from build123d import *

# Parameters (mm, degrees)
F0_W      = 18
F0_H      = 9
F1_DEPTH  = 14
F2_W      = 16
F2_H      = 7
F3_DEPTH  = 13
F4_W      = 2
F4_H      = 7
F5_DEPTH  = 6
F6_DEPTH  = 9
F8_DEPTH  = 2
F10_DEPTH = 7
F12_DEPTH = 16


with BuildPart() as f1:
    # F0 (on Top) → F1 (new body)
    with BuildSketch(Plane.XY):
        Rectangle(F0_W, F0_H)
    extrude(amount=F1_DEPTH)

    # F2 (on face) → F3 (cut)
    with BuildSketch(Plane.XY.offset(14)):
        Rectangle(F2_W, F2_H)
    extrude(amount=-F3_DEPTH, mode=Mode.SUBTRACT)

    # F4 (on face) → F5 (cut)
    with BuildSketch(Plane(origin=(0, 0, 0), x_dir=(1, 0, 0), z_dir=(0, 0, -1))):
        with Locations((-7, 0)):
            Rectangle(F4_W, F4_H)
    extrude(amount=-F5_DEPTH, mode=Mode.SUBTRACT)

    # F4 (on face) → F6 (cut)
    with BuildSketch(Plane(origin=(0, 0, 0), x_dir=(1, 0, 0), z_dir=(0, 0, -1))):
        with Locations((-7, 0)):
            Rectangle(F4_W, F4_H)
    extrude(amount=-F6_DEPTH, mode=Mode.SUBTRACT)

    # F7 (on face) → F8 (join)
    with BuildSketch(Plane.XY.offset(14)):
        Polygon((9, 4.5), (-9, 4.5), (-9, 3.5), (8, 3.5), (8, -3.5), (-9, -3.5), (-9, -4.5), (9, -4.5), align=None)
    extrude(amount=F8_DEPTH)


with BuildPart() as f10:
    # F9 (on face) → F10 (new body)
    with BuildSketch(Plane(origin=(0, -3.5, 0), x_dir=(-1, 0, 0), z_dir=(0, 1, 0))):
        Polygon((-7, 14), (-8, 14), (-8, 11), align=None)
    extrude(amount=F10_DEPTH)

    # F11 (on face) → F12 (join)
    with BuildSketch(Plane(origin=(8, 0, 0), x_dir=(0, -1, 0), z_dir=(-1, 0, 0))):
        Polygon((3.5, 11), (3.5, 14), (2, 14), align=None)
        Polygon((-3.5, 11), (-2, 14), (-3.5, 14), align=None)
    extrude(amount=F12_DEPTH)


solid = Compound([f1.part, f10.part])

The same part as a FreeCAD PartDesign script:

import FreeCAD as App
import Part
import Sketcher


def add_polygon(sketch, points):
    """Adds a closed chain of lines whose ends are joined by coincident constraints."""
    first, n = sketch.GeometryCount, len(points)
    for a, b in zip(points, points[1:] + points[:1]):
        sketch.addGeometry(Part.LineSegment(App.Vector(*a, 0), App.Vector(*b, 0)), False)
    for i in range(n):
        sketch.addConstraint(Sketcher.Constraint("Coincident", first + i, 2, first + (i + 1) % n, 1))

doc = App.newDocument("Part")
body = doc.addObject("PartDesign::Body", "Body")

sketch1 = body.newObject("Sketcher::SketchObject", "Sketch")
sketch1.AttachmentSupport = (doc.getObject("XY_Plane"), [""])
sketch1.MapMode = "FlatFace"
add_polygon(sketch1, [(-9, 4), (-9, -4), (9, -4), (9, 4)])
sketch1.addConstraint(Sketcher.Constraint("Vertical", 0))
sketch1.addConstraint(Sketcher.Constraint("Horizontal", 1))
sketch1.addConstraint(Sketcher.Constraint("Vertical", 2))
sketch1.addConstraint(Sketcher.Constraint("Horizontal", 3))
sketch1.addConstraint(Sketcher.Constraint("Symmetric", 0, 2, 2, 2, -1, 1))
sketch1.addConstraint(Sketcher.Constraint("DistanceX", 1, 1, 1, 2, 18.0))
sketch1.addConstraint(Sketcher.Constraint("DistanceY", 0, 2, 0, 1, 9.0))
pad1 = body.newObject("PartDesign::Pad", "Pad")
pad1.Profile = sketch1
pad1.Length = 14

sketch2 = body.newObject("Sketcher::SketchObject", "Sketch001")
sketch2.AttachmentSupport = (doc.getObject("XY_Plane"), [""])
sketch2.MapMode = "FlatFace"
sketch2.AttachmentOffset = App.Placement(App.Vector(0, 0, 14), App.Rotation())
add_polygon(sketch2, [(-8, 4), (-8, -4), (8, -4), (8, 4)])
sketch2.addConstraint(Sketcher.Constraint("Vertical", 0))
sketch2.addConstraint(Sketcher.Constraint("Horizontal", 1))
sketch2.addConstraint(Sketcher.Constraint("Vertical", 2))
sketch2.addConstraint(Sketcher.Constraint("Horizontal", 3))
sketch2.addConstraint(Sketcher.Constraint("Symmetric", 0, 2, 2, 2, -1, 1))
sketch2.addConstraint(Sketcher.Constraint("DistanceX", 1, 1, 1, 2, 16.0))
sketch2.addConstraint(Sketcher.Constraint("DistanceY", 0, 2, 0, 1, 7.0))
pocket1 = body.newObject("PartDesign::Pocket", "Pocket")
pocket1.Profile = sketch2
pocket1.Length = 13

sketch3 = body.newObject("Sketcher::SketchObject", "Sketch002")
sketch3.AttachmentSupport = (doc.getObject("XY_Plane"), [""])
sketch3.MapMode = "FlatFace"
add_polygon(sketch3, [(-8, -3.5), (-8, 3.5), (-6, 3.5), (-6, -3.5)])
sketch3.addConstraint(Sketcher.Constraint("Vertical", 0))
sketch3.addConstraint(Sketcher.Constraint("Horizontal", 1))
sketch3.addConstraint(Sketcher.Constraint("Vertical", 2))
sketch3.addConstraint(Sketcher.Constraint("Horizontal", 3))
sketch3.addConstraint(Sketcher.Constraint("DistanceX", 1, 1, 1, 2, 2.0))
sketch3.addConstraint(Sketcher.Constraint("DistanceY", 0, 1, 0, 2, 7.0))
sketch3.addConstraint(Sketcher.Constraint("DistanceX", 0, 2, -1, 1, 8.0))
sketch3.addConstraint(Sketcher.Constraint("DistanceY", -1, 1, 0, 2, 3.5))
pocket2 = body.newObject("PartDesign::Pocket", "Pocket001")
pocket2.Profile = sketch3
pocket2.Length = 6
pocket2.Reversed = True

sketch4 = body.newObject("Sketcher::SketchObject", "Sketch003")
sketch4.AttachmentSupport = (doc.getObject("XY_Plane"), [""])
sketch4.MapMode = "FlatFace"
add_polygon(sketch4, [(-8, -3.5), (-8, 3.5), (-6, 3.5), (-6, -3.5)])
sketch4.addConstraint(Sketcher.Constraint("Vertical", 0))
sketch4.addConstraint(Sketcher.Constraint("Horizontal", 1))
sketch4.addConstraint(Sketcher.Constraint("Vertical", 2))
sketch4.addConstraint(Sketcher.Constraint("Horizontal", 3))
sketch4.addConstraint(Sketcher.Constraint("DistanceX", 1, 1, 1, 2, 2.0))
sketch4.addConstraint(Sketcher.Constraint("DistanceY", 0, 1, 0, 2, 7.0))
sketch4.addConstraint(Sketcher.Constraint("DistanceX", 0, 2, -1, 1, 8.0))
sketch4.addConstraint(Sketcher.Constraint("DistanceY", -1, 1, 0, 2, 3.5))
pocket3 = body.newObject("PartDesign::Pocket", "Pocket002")
pocket3.Profile = sketch4
pocket3.Length = 9
pocket3.Reversed = True

sketch5 = body.newObject("Sketcher::SketchObject", "Sketch004")
sketch5.AttachmentSupport = (doc.getObject("XY_Plane"), [""])
sketch5.MapMode = "FlatFace"
sketch5.AttachmentOffset = App.Placement(App.Vector(0, 0, 14), App.Rotation())
add_polygon(sketch5, [(9, 4.5), (-9, 4.5), (-9, 3.5), (8, 3.5), (8, -3.5), (-9, -3.5), (-9, -4.5), (9, -4.5)])
sketch5.addConstraint(Sketcher.Constraint("Horizontal", 0))
sketch5.addConstraint(Sketcher.Constraint("Vertical", 1))
sketch5.addConstraint(Sketcher.Constraint("Horizontal", 2))
sketch5.addConstraint(Sketcher.Constraint("Vertical", 3))
sketch5.addConstraint(Sketcher.Constraint("Horizontal", 4))
sketch5.addConstraint(Sketcher.Constraint("Vertical", 5))
sketch5.addConstraint(Sketcher.Constraint("Horizontal", 6))
sketch5.addConstraint(Sketcher.Constraint("Vertical", 7))
sketch5.addConstraint(Sketcher.Constraint("Symmetric", 0, 2, 6, 2, -1, 1))
sketch5.addConstraint(Sketcher.Constraint("Symmetric", 1, 2, 4, 2, -1))
sketch5.addConstraint(Sketcher.Constraint("DistanceX", 0, 2, 0, 1, 18.0))
sketch5.addConstraint(Sketcher.Constraint("DistanceX", 2, 1, 2, 2, 17.0))
sketch5.addConstraint(Sketcher.Constraint("DistanceY", 1, 2, 1, 1, 1.0))
sketch5.addConstraint(Sketcher.Constraint("DistanceY", 3, 2, 3, 1, 7.0))
pad2 = body.newObject("PartDesign::Pad", "Pad001")
pad2.Profile = sketch5
pad2.Length = 2
body2 = doc.addObject("PartDesign::Body", "Body001")

sketch6 = body2.newObject("Sketcher::SketchObject", "Sketch005")
sketch6.AttachmentSupport = (doc.getObject("XZ_Plane001"), [""])
sketch6.MapMode = "FlatFace"
sketch6.AttachmentOffset = App.Placement(App.Vector(0, 0, 3.5), App.Rotation())
add_polygon(sketch6, [(7, 14), (8, 14), (8, 11)])
sketch6.addConstraint(Sketcher.Constraint("Horizontal", 0))
sketch6.addConstraint(Sketcher.Constraint("Vertical", 1))
sketch6.addConstraint(Sketcher.Constraint("DistanceX", 0, 1, 0, 2, 1.0))
sketch6.addConstraint(Sketcher.Constraint("DistanceY", 1, 2, 1, 1, 3.0))
sketch6.addConstraint(Sketcher.Constraint("DistanceX", -1, 1, 0, 2, 8.0))
sketch6.addConstraint(Sketcher.Constraint("DistanceY", -1, 1, 0, 2, 14.0))
pad3 = body2.newObject("PartDesign::Pad", "Pad002")
pad3.Profile = sketch6
pad3.Length = 7
pad3.Reversed = True

sketch7 = body2.newObject("Sketcher::SketchObject", "Sketch006")
sketch7.AttachmentSupport = (doc.getObject("YZ_Plane001"), [""])
sketch7.MapMode = "FlatFace"
sketch7.AttachmentOffset = App.Placement(App.Vector(0, 0, 8), App.Rotation())
add_polygon(sketch7, [(-3.5, 11), (-3.5, 14), (-2, 14)])
add_polygon(sketch7, [(3.5, 11), (2, 14), (3.5, 14)])
sketch7.addConstraint(Sketcher.Constraint("Vertical", 0))
sketch7.addConstraint(Sketcher.Constraint("Horizontal", 1))
sketch7.addConstraint(Sketcher.Constraint("Horizontal", 4))
sketch7.addConstraint(Sketcher.Constraint("Vertical", 5))
sketch7.addConstraint(Sketcher.Constraint("Symmetric", 1, 2, 3, 2, -2))
sketch7.addConstraint(Sketcher.Constraint("Symmetric", 2, 2, 5, 2, -2))
sketch7.addConstraint(Sketcher.Constraint("DistanceY", 0, 1, 0, 2, 3.0))
sketch7.addConstraint(Sketcher.Constraint("DistanceX", 1, 1, 1, 2, 1.5))
sketch7.addConstraint(Sketcher.Constraint("DistanceY", -1, 1, 0, 2, 14.0))
sketch7.addConstraint(Sketcher.Constraint("DistanceX", 1, 2, -1, 1, 2.0))
pad4 = body2.newObject("PartDesign::Pad", "Pad003")
pad4.Profile = sketch7
pad4.Length = 16
pad4.Reversed = True

doc.recompute()
